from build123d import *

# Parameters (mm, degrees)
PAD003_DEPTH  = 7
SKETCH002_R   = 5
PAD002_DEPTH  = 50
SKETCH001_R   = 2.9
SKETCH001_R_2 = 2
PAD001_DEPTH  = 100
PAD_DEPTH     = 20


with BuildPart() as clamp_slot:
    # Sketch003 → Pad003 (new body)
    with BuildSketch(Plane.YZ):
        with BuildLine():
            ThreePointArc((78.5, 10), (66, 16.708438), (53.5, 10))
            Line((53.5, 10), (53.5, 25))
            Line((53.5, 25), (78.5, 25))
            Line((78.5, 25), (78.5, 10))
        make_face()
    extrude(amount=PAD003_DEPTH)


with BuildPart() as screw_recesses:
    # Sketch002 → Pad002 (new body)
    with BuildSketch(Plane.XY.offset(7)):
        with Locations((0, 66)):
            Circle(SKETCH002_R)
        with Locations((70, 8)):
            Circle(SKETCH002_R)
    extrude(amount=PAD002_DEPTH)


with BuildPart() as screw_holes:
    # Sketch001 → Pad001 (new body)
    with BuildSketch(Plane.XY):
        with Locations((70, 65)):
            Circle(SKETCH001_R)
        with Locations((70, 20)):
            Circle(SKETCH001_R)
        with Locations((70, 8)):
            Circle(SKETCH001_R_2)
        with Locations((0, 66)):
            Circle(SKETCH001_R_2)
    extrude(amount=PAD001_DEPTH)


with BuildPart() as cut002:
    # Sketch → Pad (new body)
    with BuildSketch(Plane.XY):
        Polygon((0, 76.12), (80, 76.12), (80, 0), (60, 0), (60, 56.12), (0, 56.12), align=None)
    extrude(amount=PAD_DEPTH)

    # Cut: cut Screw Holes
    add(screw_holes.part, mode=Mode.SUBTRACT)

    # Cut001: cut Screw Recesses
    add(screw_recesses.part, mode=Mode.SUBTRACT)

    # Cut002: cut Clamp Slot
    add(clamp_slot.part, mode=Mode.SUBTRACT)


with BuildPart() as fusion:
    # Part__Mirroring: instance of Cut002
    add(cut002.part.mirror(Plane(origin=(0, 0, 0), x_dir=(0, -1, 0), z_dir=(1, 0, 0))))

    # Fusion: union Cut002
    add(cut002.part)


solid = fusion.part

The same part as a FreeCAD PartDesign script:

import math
import FreeCAD as App
import Part
import Sketcher

V = App.Vector
Q = App.Units.Quantity

doc = App.newDocument("Part")
body = doc.addObject("PartDesign::Body", "Body")

sketch1 = doc.addObject("Sketcher::SketchObject", "Sketch")
body.addObject(sketch1)
sketch1.AttachmentSupport = (doc.YZ_Plane, [""])
sketch1.MapMode = "FlatFace"
sketch1.addGeometry([
    Part.ArcOfCircle(Part.Circle(V(66, 2, 0), V(0, 0, 1), 15), math.radians(34), math.radians(146)),
    Part.LineSegment(V(78, 10, 0), V(78, 25, 0)),
    Part.LineSegment(V(78, 25, 0), V(54, 25, 0)),
    Part.LineSegment(V(54, 25, 0), V(54, 10, 0)),
], False)
sketch1.addConstraint([
    Sketcher.Constraint("Coincident", 0, 1, 1, 1),
    Sketcher.Constraint("Coincident", 1, 2, 2, 1),
    Sketcher.Constraint("Coincident", 2, 2, 3, 1),
    Sketcher.Constraint("Coincident", 3, 2, 0, 2),
    Sketcher.Constraint("Vertical", 1),
    Sketcher.Constraint("Horizontal", 2),
    Sketcher.Constraint("Vertical", 3),
    Sketcher.Constraint("Horizontal", 0, 1, 3, 2),
    Sketcher.Constraint("Radius", 0, Q("15 mm")),
    Sketcher.Constraint("DistanceX", 2, 2, 2, 1, Q("25 mm")),
    Sketcher.Constraint("DistanceY", 1, 1, 1, 2, Q("15 mm")),
    Sketcher.Constraint("DistanceX", -1, 1, 0, 3, Q("66 mm")),
    Sketcher.Constraint("DistanceY", -1, 1, 0, 1, Q("10 mm")),
])
pad1 = doc.addObject("PartDesign::Pad", "Pad")
body.addObject(pad1)
pad1.Profile = sketch1
pad1.Length = 7
body2 = doc.addObject("PartDesign::Body", "Body001")
body2.AllowCompound = True

sketch2 = doc.addObject("Sketcher::SketchObject", "Sketch001")
body2.addObject(sketch2)
sketch2.AttachmentSupport = (doc.getObject("XY_Plane001"), [""])
sketch2.MapMode = "FlatFace"
sketch2.AttachmentOffset = App.Placement(V(0, 0, 7), App.Rotation())
sketch2.addGeometry([
    Part.Circle(V(0, 66, 0), V(0, 0, 1), 5),
    Part.Circle(V(70, 8, 0), V(0, 0, 1), 5),
], False)
sketch2.addConstraint([
    Sketcher.Constraint("Equal", 0, 1),
    Sketcher.Constraint("PointOnObject", 0, 3, -2),
    Sketcher.Constraint("Diameter", 0, Q("10 mm")),
    Sketcher.Constraint("DistanceY", -1, 1, 0, 3, Q("66 mm")),
    Sketcher.Constraint("DistanceX", -1, 1, 1, 3, Q("70 mm")),
    Sketcher.Constraint("DistanceY", -1, 1, 1, 3, Q("8 mm")),
])
pad2 = doc.addObject("PartDesign::Pad", "Pad001")
body2.addObject(pad2)
pad2.Profile = sketch2
pad2.Length = 50
body3 = doc.addObject("PartDesign::Body", "Body002")
body3.AllowCompound = True

sketch3 = doc.addObject("Sketcher::SketchObject", "Sketch002")
body3.addObject(sketch3)
sketch3.AttachmentSupport = (doc.getObject("XY_Plane002"), [""])
sketch3.MapMode = "FlatFace"
sketch3.addGeometry([
    Part.Circle(V(70, 65, 0), V(0, 0, 1), 2.9),
    Part.Circle(V(70, 20, 0), V(0, 0, 1), 2.9),
    Part.Circle(V(70, 8, 0), V(0, 0, 1), 2),
    Part.Circle(V(0, 66, 0), V(0, 0, 1), 2),
], False)
sketch3.addConstraint([
    Sketcher.Constraint("Equal", 0, 1),
    Sketcher.Constraint("Equal", 2, 3),
    Sketcher.Constraint("PointOnObject", 3, 3, -2),
    Sketcher.Constraint("Vertical", 0, 3, 1, 3),
    Sketcher.Constraint("Vertical", 1, 3, 2, 3),
    Sketcher.Constraint("Diameter", 2, Q("4 mm")),
    Sketcher.Constraint("Diameter", 0, Q("5.8 mm")),
    Sketcher.Constraint("DistanceX", -1, 1, 0, 3, Q("70 mm")),
    Sketcher.Constraint("DistanceY", -1, 1, 0, 3, Q("65 mm")),
    Sketcher.Constraint("DistanceY", -1, 1, 1, 3, Q("20 mm")),
    Sketcher.Constraint("DistanceY", -1, 1, 2, 3, Q("8 mm")),
    Sketcher.Constraint("DistanceY", -1, 1, 3, 3, Q("66 mm")),
])
pad3 = doc.addObject("PartDesign::Pad", "Pad002")
body3.addObject(pad3)
pad3.Profile = sketch3
pad3.Length = 100
body4 = doc.addObject("PartDesign::Body", "Body003")

sketch4 = doc.addObject("Sketcher::SketchObject", "Sketch003")
body4.addObject(sketch4)
sketch4.AttachmentSupport = (doc.getObject("XY_Plane003"), [""])
sketch4.MapMode = "FlatFace"
sketch4.addGeometry([
    Part.LineSegment(V(80, 76, 0), V(0, 76, 0)),
    Part.LineSegment(V(0, 76, 0), V(0, 56, 0)),
    Part.LineSegment(V(0, 56, 0), V(60, 56, 0)),
    Part.LineSegment(V(60, 56, 0), V(60, 0, 0)),
    Part.LineSegment(V(60, 0, 0), V(80, 0, 0)),
    Part.LineSegment(V(80, 0, 0), V(80, 76, 0)),
], False)
sketch4.addConstraint([
    Sketcher.Constraint("Coincident", 0, 2, 1, 1),
    Sketcher.Constraint("Coincident", 1, 2, 2, 1),
    Sketcher.Constraint("Coincident", 2, 2, 3, 1),
    Sketcher.Constraint("Coincident", 3, 2, 4, 1),
    Sketcher.Constraint("Coincident", 4, 2, 5, 1),
    Sketcher.Constraint("Coincident", 5, 2, 0, 1),
    Sketcher.Constraint("Horizontal", 0),
    Sketcher.Constraint("Vertical", 1),
    Sketcher.Constraint("Horizontal", 2),
    Sketcher.Constraint("Vertical", 3),
    Sketcher.Constraint("Horizontal", 4),
    Sketcher.Constraint("Vertical", 5),
    Sketcher.Constraint("PointOnObject", 0, 2, -2),
    Sketcher.Constraint("PointOnObject", 3, 2, -1),
    Sketcher.Constraint("Equal", 4, 1),
    Sketcher.Constraint("DistanceX", 0, 2, 0, 1, Q("80 mm")),
    Sketcher.Constraint("DistanceX", 2, 1, 2, 2, Q("60 mm")),
    Sketcher.Constraint("DistanceY", 3, 2, 3, 1, Q("56.12 mm")),
])
pad4 = doc.addObject("PartDesign::Pad", "Pad003")
body4.addObject(pad4)
pad4.Profile = sketch4
pad4.Length = 20
doc.recompute()

boolean = doc.addObject("PartDesign::Boolean", "Boolean")
body4.addObject(boolean)
boolean.Type = "Cut"
boolean.addObjects([body3])
doc.recompute()

boolean2 = doc.addObject("PartDesign::Boolean", "Boolean001")
body4.addObject(boolean2)
boolean2.Type = "Cut"
boolean2.addObjects([body2])
doc.recompute()

boolean3 = doc.addObject("PartDesign::Boolean", "Boolean002")
body4.addObject(boolean3)
boolean3.Type = "Cut"
boolean3.addObjects([body])
body5 = doc.addObject("PartDesign::Body", "Body004")
doc.recompute()

mirroring = doc.addObject("Part::Mirroring", "Mirroring")
mirroring.Source = body4
mirroring.Base = V(0, 0, 0)
mirroring.Normal = V(1, 0, 0)
body5.BaseFeature = mirroring
doc.recompute()

boolean4 = doc.addObject("PartDesign::Boolean", "Boolean003")
body5.addObject(boolean4)
boolean4.Type = "Fuse"
boolean4.addObjects([body4])
mirroring.Visibility = False

doc.recompute()
